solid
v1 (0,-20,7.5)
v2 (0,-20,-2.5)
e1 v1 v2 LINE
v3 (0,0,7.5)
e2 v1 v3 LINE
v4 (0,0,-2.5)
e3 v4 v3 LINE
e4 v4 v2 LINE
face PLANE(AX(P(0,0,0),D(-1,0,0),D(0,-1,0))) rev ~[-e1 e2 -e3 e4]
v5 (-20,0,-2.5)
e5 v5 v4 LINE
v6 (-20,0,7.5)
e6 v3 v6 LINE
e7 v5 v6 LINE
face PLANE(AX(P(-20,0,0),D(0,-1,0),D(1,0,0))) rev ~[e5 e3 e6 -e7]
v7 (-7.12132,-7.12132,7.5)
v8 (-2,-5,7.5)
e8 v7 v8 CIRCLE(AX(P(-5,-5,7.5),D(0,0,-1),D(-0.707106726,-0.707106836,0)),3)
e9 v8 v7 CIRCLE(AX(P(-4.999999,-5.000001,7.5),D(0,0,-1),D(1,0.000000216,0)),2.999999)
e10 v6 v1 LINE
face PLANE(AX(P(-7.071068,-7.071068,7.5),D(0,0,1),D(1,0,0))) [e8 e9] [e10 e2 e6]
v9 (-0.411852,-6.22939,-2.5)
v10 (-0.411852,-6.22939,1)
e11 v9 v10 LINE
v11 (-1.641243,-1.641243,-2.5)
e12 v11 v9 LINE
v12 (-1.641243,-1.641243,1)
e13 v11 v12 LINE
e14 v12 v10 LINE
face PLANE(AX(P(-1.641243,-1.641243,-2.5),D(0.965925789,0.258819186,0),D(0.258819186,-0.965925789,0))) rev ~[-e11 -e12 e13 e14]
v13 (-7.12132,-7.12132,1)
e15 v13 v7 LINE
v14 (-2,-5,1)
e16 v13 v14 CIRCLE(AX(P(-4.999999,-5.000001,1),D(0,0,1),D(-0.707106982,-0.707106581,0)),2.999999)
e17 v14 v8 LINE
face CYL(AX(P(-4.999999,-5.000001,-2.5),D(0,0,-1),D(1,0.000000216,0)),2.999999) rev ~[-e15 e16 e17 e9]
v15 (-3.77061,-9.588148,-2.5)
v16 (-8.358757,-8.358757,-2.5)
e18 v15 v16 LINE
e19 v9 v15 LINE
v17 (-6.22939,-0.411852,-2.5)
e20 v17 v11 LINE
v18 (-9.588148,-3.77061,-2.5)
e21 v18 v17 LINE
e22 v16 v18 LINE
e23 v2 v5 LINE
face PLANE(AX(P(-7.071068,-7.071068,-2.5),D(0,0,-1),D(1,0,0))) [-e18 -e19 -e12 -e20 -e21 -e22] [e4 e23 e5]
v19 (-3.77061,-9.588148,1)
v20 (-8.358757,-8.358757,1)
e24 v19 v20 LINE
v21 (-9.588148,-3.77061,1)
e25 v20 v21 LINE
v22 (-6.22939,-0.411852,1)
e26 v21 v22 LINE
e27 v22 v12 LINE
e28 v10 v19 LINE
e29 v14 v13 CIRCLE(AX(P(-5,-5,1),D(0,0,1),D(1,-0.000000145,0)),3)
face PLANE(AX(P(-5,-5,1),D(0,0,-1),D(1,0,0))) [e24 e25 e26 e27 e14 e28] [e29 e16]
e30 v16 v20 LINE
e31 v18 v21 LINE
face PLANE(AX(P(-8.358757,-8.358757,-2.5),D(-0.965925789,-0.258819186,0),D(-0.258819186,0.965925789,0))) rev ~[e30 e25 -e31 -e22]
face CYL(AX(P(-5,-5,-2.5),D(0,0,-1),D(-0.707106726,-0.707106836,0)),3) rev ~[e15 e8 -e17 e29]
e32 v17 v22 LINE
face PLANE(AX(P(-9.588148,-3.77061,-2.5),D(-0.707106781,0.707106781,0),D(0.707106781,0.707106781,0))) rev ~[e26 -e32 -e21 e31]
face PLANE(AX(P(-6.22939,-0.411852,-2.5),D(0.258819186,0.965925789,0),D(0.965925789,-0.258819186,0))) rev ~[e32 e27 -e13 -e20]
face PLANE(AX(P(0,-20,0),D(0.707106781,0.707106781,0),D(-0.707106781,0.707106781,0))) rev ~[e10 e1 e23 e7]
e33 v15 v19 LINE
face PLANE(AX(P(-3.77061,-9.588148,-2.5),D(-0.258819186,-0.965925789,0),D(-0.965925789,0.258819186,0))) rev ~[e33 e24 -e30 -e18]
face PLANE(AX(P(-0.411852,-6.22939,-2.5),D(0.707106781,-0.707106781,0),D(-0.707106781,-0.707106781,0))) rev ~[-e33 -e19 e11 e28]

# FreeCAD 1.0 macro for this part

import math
import FreeCAD as App
import Part
import Sketcher

V = App.Vector
Q = App.Units.Quantity


def add_polygon(sketch, points):
    """Adds a closed chain of lines whose ends are joined by coincident constraints."""
    first, n = sketch.GeometryCount, len(points)
    for a, b in zip(points, points[1:] + points[:1]):
        sketch.addGeometry(Part.LineSegment(App.Vector(*a, 0), App.Vector(*b, 0)), False)
    for i in range(n):
        sketch.addConstraint(Sketcher.Constraint("Coincident", first + i, 2, first + (i + 1) % n, 1))

doc = App.newDocument("Part")
params = doc.addObject("Spreadsheet::Sheet", "Params")
for row, (alias, value) in enumerate([
    ("sketch1_width", "20 mm"),
    ("pad1_length", "7.5 mm"),
    ("sketch2_width", "20 mm"),
    ("pad2_length", "2.5 mm"),
    ("sketch3_radius", "2.999999 mm"),
    ("pocket1_length", "25 mm"),
    ("sketch4_radius", "2.999999 mm"),
    ("sketch4_length", "4.749999 mm"),
    ("pocket2_length", "3.5 mm"),
], start=1):
    params.set(f"A{row}", alias)
    params.set(f"B{row}", "=" + value)
    params.setAlias(f"B{row}", alias)

body = doc.addObject("PartDesign::Body", "Body")

# Sketch on XY plane
sketch1 = body.newObject("Sketcher::SketchObject", "Sketch")
sketch1.AttachmentSupport = (doc.getObject("XY_Plane"), [""])
sketch1.MapMode = "FlatFace"
add_polygon(sketch1, [(0, -20), (0, 0), (-20, 0)])  # lines 0-2
sketch1.addConstraint(Sketcher.Constraint("Vertical", 0))
sketch1.addConstraint(Sketcher.Constraint("Horizontal", 1))
sketch1.addConstraint(Sketcher.Constraint("Coincident", 0, 2, -1, 1))
sketch1.addConstraint(Sketcher.Constraint("Equal", 1, 0))
sketch1.addConstraint(Sketcher.Constraint("DistanceX", 1, 2, 1, 1, Q("20 mm")))
sketch1.setExpression("Constraints[7]", "Params.sketch1_width")
pad1 = body.newObject("PartDesign::Pad", "Pad")
pad1.Profile = sketch1
pad1.setExpression("Length", "Params.pad1_length")

# Sketch on XY plane
sketch2 = body.newObject("Sketcher::SketchObject", "Sketch001")
sketch2.AttachmentSupport = (doc.getObject("XY_Plane"), [""])
sketch2.MapMode = "FlatFace"
add_polygon(sketch2, [(0, 0), (0, -20), (-20, 0)])  # lines 0-2
sketch2.addConstraint(Sketcher.Constraint("Vertical", 0))
sketch2.addConstraint(Sketcher.Constraint("Horizontal", 2))
sketch2.addConstraint(Sketcher.Constraint("Coincident", 2, 2, -1, 1))
sketch2.addConstraint(Sketcher.Constraint("Equal", 2, 0))
sketch2.addConstraint(Sketcher.Constraint("DistanceX", 2, 1, 2, 2, Q("20 mm")))
sketch2.setExpression("Constraints[7]", "Params.sketch2_width")
pad2 = body.newObject("PartDesign::Pad", "Pad001")
pad2.Profile = sketch2
pad2.setExpression("Length", "Params.pad2_length")
pad2.Reversed = True

# Sketch on XY plane
sketch3 = body.newObject("Sketcher::SketchObject", "Sketch002")
sketch3.AttachmentSupport = (doc.getObject("XY_Plane"), [""])
sketch3.MapMode = "FlatFace"
sketch3.AttachmentOffset = App.Placement(V(0, 0, -2.5), App.Rotation())
sketch3.addGeometry(Part.ArcOfCircle(Part.Circle(V(-5, -5, 0), V(0, 0, 1), 3), math.radians(-135), math.radians(0)), False)
sketch3.addGeometry(Part.ArcOfCircle(Part.Circle(V(-5, -5, 0), V(0, 0, 1), 3), math.radians(0), math.radians(225)), False)
sketch3.addConstraint(Sketcher.Constraint("Tangent", 0, 1, 1, 2))
sketch3.addConstraint(Sketcher.Constraint("Coincident", 1, 1, 0, 2))
sketch3.addConstraint(Sketcher.Constraint("Horizontal", 0, 3, 1, 1))
sketch3.addConstraint(Sketcher.Constraint("Radius", 0, Q("2.999999 mm")))
sketch3.addConstraint(Sketcher.Constraint("DistanceX", 0, 3, -1, 1, Q("4.999999 mm")))
sketch3.addConstraint(Sketcher.Constraint("DistanceY", 0, 3, -1, 1, Q("5.000001 mm")))
sketch3.addConstraint(Sketcher.Constraint("DistanceX", 0, 1, -1, 1, Q("7.12132 mm")))
sketch3.setExpression("Constraints[3]", "Params.sketch3_radius")
pocket1 = body.newObject("PartDesign::Pocket", "Pocket")
pocket1.Profile = sketch3
pocket1.setExpression("Length", "Params.pocket1_length")
pocket1.Reversed = True

# Sketch on XY plane
sketch4 = body.newObject("Sketcher::SketchObject", "Sketch003")
sketch4.AttachmentSupport = (doc.getObject("XY_Plane"), [""])
sketch4.MapMode = "FlatFace"
sketch4.AttachmentOffset = App.Placement(V(0, 0, -2.5), App.Rotation())
add_polygon(sketch4, [(-3.8, -9.6), (-8.4, -8.4), (-9.6, -3.8), (-6.2, -0.4), (-1.6, -1.6), (-0.4, -6.2)])  # lines 0-5
sketch4.addGeometry(Part.ArcOfCircle(Part.Circle(V(-5, -5, 0), V(0, 0, 1), 3), math.radians(-135), math.radians(0)), False)  # 6
sketch4.addGeometry(Part.ArcOfCircle(Part.Circle(V(-5, -5, 0), V(0, 0, 1), 3), math.radians(0), math.radians(225)), False)  # 7
sketch4.addConstraint(Sketcher.Constraint("Tangent", 6, 1, 7, 2))
sketch4.addConstraint(Sketcher.Constraint("Coincident", 7, 1, 6, 2))
sketch4.addConstraint(Sketcher.Constraint("Parallel", 0, 3))
sketch4.addConstraint(Sketcher.Constraint("Parallel", 1, 4))
sketch4.addConstraint(Sketcher.Constraint("Parallel", 2, 5))
sketch4.addConstraint(Sketcher.Constraint("Horizontal", 6, 3, 7, 1))
sketch4.addConstraint(Sketcher.Constraint("Equal", 0, 1))
sketch4.addConstraint(Sketcher.Constraint("Equal", 1, 2))
sketch4.addConstraint(Sketcher.Constraint("Equal", 2, 3))
sketch4.addConstraint(Sketcher.Constraint("Radius", 6, Q("2.999999 mm")))
sketch4.addConstraint(Sketcher.Constraint("Angle", 0, Q("164.999992 deg")))
sketch4.addConstraint(Sketcher.Constraint("Angle", 1, Q("105.000008 deg")))
sketch4.addConstraint(Sketcher.Constraint("Angle", 2, Q("45 deg")))
sketch4.addConstraint(Sketcher.Constraint("DistanceX", 6, 3, -1, 1, Q("4.999999 mm")))
sketch4.addConstraint(Sketcher.Constraint("DistanceY", 6, 3, -1, 1, Q("5.000001 mm")))
sketch4.addConstraint(Sketcher.Constraint("Distance", 0, Q("4.749999 mm")))
sketch4.addConstraint(Sketcher.Constraint("DistanceY", 1, 2, -1, 1, Q("3.77061 mm")))
sketch4.addConstraint(Sketcher.Constraint("DistanceX", 2, 2, -1, 1, Q("6.22939 mm")))
sketch4.addConstraint(Sketcher.Constraint("DistanceX", 6, 1, -1, 1, Q("7.12132 mm")))
sketch4.setExpression("Constraints[15]", "Params.sketch4_radius")
sketch4.setExpression("Constraints[21]", "Params.sketch4_length")
pocket2 = body.newObject("PartDesign::Pocket", "Pocket001")
pocket2.Profile = sketch4
pocket2.setExpression("Length", "Params.pocket2_length")
pocket2.Reversed = True

doc.recompute()
